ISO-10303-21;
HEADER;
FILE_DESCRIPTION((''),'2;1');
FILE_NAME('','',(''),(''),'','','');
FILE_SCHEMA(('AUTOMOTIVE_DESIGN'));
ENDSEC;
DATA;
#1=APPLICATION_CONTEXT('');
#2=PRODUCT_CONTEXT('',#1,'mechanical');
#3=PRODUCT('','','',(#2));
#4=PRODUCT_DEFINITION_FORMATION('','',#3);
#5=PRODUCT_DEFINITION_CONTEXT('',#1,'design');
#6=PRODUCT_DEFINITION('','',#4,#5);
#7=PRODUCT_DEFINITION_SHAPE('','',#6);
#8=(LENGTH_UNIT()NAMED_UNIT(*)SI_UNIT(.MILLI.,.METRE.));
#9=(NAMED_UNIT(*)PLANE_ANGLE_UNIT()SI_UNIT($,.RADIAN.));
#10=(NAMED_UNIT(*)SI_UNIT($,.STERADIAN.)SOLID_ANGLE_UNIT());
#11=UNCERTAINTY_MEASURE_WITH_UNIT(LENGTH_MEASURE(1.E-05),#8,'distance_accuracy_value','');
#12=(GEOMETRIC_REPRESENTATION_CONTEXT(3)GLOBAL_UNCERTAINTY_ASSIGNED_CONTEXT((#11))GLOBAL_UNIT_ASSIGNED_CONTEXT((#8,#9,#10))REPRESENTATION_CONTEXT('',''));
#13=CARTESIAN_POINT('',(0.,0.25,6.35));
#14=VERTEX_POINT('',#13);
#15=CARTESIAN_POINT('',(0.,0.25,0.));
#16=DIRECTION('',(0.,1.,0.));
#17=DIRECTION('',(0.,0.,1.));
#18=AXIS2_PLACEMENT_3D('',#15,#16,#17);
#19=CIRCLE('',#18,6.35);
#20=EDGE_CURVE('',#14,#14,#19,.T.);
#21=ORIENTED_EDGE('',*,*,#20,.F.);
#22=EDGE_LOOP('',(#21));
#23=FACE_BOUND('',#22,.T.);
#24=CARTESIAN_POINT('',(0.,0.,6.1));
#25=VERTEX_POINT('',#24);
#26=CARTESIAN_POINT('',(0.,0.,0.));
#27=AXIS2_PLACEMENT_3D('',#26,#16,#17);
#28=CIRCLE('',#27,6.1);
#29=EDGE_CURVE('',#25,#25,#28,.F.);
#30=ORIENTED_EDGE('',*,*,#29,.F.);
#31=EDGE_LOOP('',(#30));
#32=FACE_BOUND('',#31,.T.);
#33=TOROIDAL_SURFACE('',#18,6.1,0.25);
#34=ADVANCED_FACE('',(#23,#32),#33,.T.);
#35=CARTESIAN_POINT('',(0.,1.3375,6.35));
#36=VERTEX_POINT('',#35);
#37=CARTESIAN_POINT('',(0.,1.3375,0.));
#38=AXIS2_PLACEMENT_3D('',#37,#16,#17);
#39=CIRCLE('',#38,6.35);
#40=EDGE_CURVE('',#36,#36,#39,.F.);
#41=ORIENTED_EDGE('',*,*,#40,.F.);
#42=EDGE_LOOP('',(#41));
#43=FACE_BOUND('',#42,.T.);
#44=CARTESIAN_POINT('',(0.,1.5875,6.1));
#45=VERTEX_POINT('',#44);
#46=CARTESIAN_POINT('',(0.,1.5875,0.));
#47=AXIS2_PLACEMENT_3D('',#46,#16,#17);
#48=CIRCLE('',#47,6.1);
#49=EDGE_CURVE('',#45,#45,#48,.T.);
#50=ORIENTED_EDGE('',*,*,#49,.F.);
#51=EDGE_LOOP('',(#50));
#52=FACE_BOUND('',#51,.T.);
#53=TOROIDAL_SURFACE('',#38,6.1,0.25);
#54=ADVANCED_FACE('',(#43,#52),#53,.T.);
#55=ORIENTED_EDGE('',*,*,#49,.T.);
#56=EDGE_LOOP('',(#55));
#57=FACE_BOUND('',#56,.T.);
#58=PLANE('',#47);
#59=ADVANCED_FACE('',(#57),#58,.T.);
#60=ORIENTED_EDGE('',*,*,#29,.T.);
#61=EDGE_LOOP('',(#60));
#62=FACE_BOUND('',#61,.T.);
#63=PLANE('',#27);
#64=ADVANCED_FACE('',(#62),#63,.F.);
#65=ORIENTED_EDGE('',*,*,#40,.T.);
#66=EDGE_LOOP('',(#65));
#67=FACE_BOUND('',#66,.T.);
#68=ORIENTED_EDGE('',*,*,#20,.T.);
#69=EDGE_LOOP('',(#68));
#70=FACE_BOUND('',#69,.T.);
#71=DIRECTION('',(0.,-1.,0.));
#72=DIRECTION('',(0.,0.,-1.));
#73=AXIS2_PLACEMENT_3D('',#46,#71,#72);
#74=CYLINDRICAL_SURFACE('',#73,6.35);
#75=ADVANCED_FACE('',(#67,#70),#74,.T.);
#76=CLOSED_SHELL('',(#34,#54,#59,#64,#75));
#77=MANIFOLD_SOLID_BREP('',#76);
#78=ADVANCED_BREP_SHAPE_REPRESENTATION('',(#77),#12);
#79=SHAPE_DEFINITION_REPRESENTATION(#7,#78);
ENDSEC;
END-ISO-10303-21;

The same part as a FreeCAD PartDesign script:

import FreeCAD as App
import Part
import Sketcher

V = App.Vector
Q = App.Units.Quantity


def edges_at(feature, points):
    """Names of the edges that pass closest to the given points."""
    edges = feature.Shape.Edges
    near = lambda p: min(range(len(edges)), key=lambda i: edges[i].distToShape(Part.Vertex(*p))[0])
    return sorted({f"Edge{near(p) + 1}" for p in points})

doc = App.newDocument("Part")
body = doc.addObject("PartDesign::Body", "Body")

sketch1 = body.newObject("Sketcher::SketchObject", "Sketch")
sketch1.AttachmentSupport = (doc.getObject("XZ_Plane"), [""])
sketch1.MapMode = "FlatFace"
sketch1.addGeometry(Part.Circle(V(0, 0, 0), V(0, 0, 1), 6.35), False)
sketch1.addConstraint([
    Sketcher.Constraint("Coincident", 0, 3, -1, 1),
    Sketcher.Constraint("Diameter", 0, Q("0.5 in")),
])
pad1 = body.newObject("PartDesign::Pad", "Pad")
pad1.Profile = sketch1
pad1.Length = Q("0.0625 in")
pad1.Reversed = True
doc.recompute()

fillet = body.newObject("PartDesign::Fillet", "Fillet")
fillet.Base = (pad1, edges_at(pad1, [(-6.35, 0, 0), (-6.35, 1.587, 0)]))
fillet.Radius = 0.25

doc.recompute()
